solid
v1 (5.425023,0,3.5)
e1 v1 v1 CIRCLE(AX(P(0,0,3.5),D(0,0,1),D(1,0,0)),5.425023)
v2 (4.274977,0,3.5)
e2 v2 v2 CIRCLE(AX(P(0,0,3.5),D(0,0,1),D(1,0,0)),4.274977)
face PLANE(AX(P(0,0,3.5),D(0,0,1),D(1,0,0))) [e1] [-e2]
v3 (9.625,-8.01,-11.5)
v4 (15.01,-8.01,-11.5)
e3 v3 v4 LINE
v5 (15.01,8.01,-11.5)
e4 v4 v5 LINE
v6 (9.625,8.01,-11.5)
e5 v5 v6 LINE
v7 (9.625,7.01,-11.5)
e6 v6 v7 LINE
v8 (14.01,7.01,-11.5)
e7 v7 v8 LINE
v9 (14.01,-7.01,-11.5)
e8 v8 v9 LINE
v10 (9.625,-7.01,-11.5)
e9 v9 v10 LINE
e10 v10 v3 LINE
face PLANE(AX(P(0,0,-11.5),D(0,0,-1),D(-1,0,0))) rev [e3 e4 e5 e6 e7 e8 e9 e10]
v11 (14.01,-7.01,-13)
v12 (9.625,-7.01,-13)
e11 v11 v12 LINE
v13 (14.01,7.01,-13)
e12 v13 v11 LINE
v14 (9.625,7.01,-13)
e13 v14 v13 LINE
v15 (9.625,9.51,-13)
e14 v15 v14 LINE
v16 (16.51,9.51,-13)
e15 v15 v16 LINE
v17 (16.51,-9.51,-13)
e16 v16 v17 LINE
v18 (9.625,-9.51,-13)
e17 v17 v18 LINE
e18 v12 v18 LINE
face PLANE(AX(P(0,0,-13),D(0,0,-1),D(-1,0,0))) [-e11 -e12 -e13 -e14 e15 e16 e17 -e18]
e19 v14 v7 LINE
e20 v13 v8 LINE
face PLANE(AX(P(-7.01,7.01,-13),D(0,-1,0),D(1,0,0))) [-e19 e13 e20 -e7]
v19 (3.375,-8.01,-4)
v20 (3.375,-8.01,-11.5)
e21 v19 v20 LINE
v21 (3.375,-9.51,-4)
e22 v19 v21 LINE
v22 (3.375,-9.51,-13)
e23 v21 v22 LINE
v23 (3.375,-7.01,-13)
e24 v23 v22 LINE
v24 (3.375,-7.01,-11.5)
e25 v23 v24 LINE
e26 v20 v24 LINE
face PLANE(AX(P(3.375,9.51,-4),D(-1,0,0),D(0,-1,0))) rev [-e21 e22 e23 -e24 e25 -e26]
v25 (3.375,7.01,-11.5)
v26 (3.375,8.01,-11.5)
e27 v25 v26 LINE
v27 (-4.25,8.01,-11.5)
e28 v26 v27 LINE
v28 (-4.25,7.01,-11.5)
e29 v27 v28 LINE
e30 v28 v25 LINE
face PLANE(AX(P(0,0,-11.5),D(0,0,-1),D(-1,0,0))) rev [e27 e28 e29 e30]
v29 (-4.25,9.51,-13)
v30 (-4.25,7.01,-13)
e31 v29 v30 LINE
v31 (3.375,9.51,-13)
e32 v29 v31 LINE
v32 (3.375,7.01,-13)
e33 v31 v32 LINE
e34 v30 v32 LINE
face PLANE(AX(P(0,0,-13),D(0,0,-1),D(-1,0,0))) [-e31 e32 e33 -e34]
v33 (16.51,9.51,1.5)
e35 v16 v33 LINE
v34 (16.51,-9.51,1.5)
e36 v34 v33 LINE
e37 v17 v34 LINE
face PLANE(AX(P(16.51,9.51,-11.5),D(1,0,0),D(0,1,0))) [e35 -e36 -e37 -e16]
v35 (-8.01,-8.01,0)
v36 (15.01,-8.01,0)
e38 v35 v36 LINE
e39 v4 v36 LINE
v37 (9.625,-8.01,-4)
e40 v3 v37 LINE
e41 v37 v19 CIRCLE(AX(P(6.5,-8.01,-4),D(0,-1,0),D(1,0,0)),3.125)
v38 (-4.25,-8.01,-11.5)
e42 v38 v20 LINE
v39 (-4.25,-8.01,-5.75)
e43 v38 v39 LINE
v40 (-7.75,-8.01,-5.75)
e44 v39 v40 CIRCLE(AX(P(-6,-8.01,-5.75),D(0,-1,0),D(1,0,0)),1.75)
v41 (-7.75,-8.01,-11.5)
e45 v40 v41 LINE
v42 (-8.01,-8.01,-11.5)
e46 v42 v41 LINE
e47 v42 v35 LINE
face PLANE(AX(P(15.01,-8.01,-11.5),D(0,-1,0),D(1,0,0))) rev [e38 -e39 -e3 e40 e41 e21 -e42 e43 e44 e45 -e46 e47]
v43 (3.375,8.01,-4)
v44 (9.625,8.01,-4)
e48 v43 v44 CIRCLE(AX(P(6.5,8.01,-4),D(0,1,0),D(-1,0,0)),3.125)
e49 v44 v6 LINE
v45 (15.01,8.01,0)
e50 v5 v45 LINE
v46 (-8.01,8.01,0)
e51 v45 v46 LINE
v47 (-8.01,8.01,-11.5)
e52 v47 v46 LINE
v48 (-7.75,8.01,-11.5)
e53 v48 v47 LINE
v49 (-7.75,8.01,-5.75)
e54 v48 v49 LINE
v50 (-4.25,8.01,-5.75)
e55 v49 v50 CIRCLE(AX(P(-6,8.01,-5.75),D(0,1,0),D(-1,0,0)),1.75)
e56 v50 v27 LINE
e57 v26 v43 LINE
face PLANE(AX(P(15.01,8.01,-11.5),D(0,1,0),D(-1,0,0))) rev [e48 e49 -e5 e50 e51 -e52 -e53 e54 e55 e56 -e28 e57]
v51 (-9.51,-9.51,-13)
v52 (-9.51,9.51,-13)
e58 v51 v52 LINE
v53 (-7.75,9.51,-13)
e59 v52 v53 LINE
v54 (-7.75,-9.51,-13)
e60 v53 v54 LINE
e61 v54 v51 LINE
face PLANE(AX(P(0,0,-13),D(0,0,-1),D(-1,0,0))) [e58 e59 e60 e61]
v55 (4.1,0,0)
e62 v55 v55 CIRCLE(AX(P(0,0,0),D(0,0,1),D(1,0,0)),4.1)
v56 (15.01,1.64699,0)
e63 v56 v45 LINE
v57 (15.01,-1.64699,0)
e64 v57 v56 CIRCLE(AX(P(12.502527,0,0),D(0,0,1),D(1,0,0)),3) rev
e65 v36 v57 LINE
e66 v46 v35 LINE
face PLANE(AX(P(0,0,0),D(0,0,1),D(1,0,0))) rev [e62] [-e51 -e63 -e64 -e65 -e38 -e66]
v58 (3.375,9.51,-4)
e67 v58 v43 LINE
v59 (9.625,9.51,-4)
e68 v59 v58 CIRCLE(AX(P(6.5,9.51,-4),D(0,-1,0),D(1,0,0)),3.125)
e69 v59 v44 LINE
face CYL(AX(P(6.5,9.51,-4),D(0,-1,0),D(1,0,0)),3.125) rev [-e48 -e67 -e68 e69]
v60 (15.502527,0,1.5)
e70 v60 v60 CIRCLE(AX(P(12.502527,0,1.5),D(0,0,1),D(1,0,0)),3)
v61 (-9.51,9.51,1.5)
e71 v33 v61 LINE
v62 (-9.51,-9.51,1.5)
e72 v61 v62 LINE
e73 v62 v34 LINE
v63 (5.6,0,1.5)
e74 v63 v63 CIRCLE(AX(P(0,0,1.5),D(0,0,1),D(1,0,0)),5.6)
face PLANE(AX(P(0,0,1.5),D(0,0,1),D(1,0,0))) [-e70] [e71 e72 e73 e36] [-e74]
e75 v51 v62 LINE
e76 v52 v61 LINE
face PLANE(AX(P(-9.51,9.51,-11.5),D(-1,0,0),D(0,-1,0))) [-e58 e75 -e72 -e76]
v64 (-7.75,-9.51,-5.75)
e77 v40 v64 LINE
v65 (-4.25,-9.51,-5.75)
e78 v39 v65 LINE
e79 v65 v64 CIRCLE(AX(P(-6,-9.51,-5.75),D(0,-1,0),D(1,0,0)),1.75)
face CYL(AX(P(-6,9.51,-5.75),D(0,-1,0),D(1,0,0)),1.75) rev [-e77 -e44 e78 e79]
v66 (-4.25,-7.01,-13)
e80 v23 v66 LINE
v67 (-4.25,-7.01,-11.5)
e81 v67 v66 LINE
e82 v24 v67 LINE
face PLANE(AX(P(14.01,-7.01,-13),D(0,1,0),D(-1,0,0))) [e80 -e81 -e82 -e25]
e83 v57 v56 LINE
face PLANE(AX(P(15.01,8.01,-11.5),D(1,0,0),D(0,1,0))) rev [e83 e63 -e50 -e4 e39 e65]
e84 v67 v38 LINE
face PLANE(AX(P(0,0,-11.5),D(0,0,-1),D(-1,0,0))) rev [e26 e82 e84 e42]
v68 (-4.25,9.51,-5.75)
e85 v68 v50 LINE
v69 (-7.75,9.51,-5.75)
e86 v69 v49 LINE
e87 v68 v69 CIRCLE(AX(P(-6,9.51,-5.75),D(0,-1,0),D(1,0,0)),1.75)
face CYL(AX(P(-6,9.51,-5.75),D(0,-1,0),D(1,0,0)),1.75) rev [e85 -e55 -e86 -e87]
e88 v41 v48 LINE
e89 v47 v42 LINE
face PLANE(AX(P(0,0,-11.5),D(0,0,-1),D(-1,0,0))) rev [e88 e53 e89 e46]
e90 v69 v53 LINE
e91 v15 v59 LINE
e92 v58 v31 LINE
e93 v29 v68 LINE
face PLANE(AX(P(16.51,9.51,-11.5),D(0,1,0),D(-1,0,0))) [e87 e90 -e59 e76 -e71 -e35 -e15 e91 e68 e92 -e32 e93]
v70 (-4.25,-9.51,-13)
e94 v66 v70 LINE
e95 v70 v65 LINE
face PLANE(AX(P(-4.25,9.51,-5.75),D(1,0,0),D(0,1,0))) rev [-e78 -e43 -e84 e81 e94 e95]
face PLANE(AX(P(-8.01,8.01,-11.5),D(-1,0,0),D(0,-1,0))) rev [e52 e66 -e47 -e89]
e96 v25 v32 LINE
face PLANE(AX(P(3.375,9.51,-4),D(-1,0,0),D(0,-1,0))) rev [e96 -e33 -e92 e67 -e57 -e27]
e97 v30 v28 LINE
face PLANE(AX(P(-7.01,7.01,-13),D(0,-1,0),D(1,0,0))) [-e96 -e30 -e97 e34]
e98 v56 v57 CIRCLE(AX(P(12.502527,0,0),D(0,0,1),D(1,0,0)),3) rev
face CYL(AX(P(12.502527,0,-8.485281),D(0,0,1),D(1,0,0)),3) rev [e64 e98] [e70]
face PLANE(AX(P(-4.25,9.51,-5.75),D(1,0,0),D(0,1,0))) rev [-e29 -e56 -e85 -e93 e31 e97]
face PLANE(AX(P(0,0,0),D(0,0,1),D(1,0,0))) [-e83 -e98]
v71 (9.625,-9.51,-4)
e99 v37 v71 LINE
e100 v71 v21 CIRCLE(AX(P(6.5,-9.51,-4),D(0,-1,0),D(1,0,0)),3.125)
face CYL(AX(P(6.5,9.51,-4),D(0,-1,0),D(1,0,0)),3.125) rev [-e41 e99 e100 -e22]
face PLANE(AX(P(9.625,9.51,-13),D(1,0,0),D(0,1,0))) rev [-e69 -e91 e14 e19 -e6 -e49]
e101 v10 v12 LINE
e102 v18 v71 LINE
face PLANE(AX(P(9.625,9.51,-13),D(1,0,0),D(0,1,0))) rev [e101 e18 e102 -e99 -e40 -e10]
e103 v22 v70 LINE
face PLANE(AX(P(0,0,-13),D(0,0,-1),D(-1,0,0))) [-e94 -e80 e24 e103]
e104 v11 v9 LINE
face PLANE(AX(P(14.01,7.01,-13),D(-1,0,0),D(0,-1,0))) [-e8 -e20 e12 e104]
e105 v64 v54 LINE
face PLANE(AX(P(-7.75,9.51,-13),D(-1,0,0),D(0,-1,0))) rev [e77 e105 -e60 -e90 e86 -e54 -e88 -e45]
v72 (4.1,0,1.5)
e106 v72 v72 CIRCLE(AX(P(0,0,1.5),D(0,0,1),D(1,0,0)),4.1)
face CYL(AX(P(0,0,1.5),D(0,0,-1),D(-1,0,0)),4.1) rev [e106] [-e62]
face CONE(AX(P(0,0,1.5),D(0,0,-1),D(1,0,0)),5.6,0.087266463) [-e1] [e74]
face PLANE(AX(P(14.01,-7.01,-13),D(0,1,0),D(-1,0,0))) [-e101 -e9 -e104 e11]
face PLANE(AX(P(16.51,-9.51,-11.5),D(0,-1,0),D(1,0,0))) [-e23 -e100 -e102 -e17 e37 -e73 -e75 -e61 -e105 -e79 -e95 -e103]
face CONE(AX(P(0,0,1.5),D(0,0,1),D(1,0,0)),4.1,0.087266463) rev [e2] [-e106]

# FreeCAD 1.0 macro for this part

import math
import FreeCAD as App
import Part
import Sketcher


def faces_at(feature, points):
    """Names of the faces that lie closest to the given points."""
    faces = feature.Shape.Faces
    near = lambda p: min(range(len(faces)), key=lambda i: faces[i].distToShape(Part.Vertex(*p))[0])
    return sorted({f"Face{near(p) + 1}" for p in points})

doc = App.newDocument("Part")
body = doc.addObject("PartDesign::Body", "Body")

# Sketch on XY plane
sketch1 = body.newObject("Sketcher::SketchObject", "Sketch")
sketch1.AttachmentSupport = (doc.getObject("XY_Plane"), [""])
sketch1.MapMode = "FlatFace"
sketch1.addGeometry([
    Part.LineSegment(App.Vector(-10, 10, 0), App.Vector(-10, -10, 0)),  # 0
    Part.LineSegment(App.Vector(-10, -10, 0), App.Vector(17, -10, 0)),  # 1
    Part.LineSegment(App.Vector(17, -10, 0), App.Vector(17, 10, 0)),  # 2
    Part.LineSegment(App.Vector(17, 10, 0), App.Vector(-10, 10, 0)),  # 3
    Part.LineSegment(App.Vector(15, -8, 0), App.Vector(-8, -8, 0)),  # 4
    Part.LineSegment(App.Vector(-8, -8, 0), App.Vector(-8, 8, 0)),  # 5
    Part.LineSegment(App.Vector(-8, 8, 0), App.Vector(15, 8, 0)),  # 6
    Part.LineSegment(App.Vector(15, 8, 0), App.Vector(15, -8, 0)),  # 7
], False)
sketch1.addConstraint([
    Sketcher.Constraint("Coincident", 0, 2, 1, 1),
    Sketcher.Constraint("Coincident", 1, 2, 2, 1),
    Sketcher.Constraint("Coincident", 2, 2, 3, 1),
    Sketcher.Constraint("Coincident", 3, 2, 0, 1),
    Sketcher.Constraint("Coincident", 4, 2, 5, 1),
    Sketcher.Constraint("Coincident", 5, 2, 6, 1),
    Sketcher.Constraint("Coincident", 6, 2, 7, 1),
    Sketcher.Constraint("Coincident", 7, 2, 4, 1),
    Sketcher.Constraint("Vertical", 0),
    Sketcher.Constraint("Horizontal", 1),
    Sketcher.Constraint("Vertical", 2),
    Sketcher.Constraint("Horizontal", 3),
    Sketcher.Constraint("Horizontal", 4),
    Sketcher.Constraint("Vertical", 5),
    Sketcher.Constraint("Horizontal", 6),
    Sketcher.Constraint("Vertical", 7),
    Sketcher.Constraint("DistanceX", 1, 1, 1, 2, 26.02),
    Sketcher.Constraint("DistanceX", 4, 2, 4, 1, 23.02),
    Sketcher.Constraint("DistanceY", 0, 2, 0, 1, 19.02),
    Sketcher.Constraint("DistanceY", 5, 1, 5, 2, 16.02),
    Sketcher.Constraint("DistanceX", 0, 2, 4, 2, 1.5),
    Sketcher.Constraint("DistanceY", 0, 2, 4, 2, 1.5),
    Sketcher.Constraint("DistanceX", 0, 2, -1, 1, 9.51),
    Sketcher.Constraint("DistanceY", 0, 2, -1, 1, 9.51),
])
pad1 = body.newObject("PartDesign::Pad", "Pad")
pad1.Profile = sketch1
pad1.Length = 11.5
pad1.Reversed = True

# Sketch on XY plane
sketch2 = body.newObject("Sketcher::SketchObject", "Sketch001")
sketch2.AttachmentSupport = (doc.getObject("XY_Plane"), [""])
sketch2.MapMode = "FlatFace"
sketch2.AttachmentOffset = App.Placement(App.Vector(0, 0, -11.5), App.Rotation())
sketch2.addGeometry([
    Part.LineSegment(App.Vector(17, 10, 0), App.Vector(17, -10, 0)),  # 0
    Part.LineSegment(App.Vector(17, -10, 0), App.Vector(-10, -10, 0)),  # 1
    Part.LineSegment(App.Vector(-10, -10, 0), App.Vector(-10, 10, 0)),  # 2
    Part.LineSegment(App.Vector(-10, 10, 0), App.Vector(17, 10, 0)),  # 3
    Part.LineSegment(App.Vector(-7, -7, 0), App.Vector(14, -7, 0)),  # 4
    Part.LineSegment(App.Vector(14, -7, 0), App.Vector(14, 7, 0)),  # 5
    Part.LineSegment(App.Vector(14, 7, 0), App.Vector(-7, 7, 0)),  # 6
    Part.LineSegment(App.Vector(-7, 7, 0), App.Vector(-7, -7, 0)),  # 7
], False)
sketch2.addConstraint([
    Sketcher.Constraint("Coincident", 0, 2, 1, 1),
    Sketcher.Constraint("Coincident", 1, 2, 2, 1),
    Sketcher.Constraint("Coincident", 2, 2, 3, 1),
    Sketcher.Constraint("Coincident", 3, 2, 0, 1),
    Sketcher.Constraint("Coincident", 4, 2, 5, 1),
    Sketcher.Constraint("Coincident", 5, 2, 6, 1),
    Sketcher.Constraint("Coincident", 6, 2, 7, 1),
    Sketcher.Constraint("Coincident", 7, 2, 4, 1),
    Sketcher.Constraint("Vertical", 0),
    Sketcher.Constraint("Horizontal", 1),
    Sketcher.Constraint("Vertical", 2),
    Sketcher.Constraint("Horizontal", 3),
    Sketcher.Constraint("Horizontal", 4),
    Sketcher.Constraint("Vertical", 5),
    Sketcher.Constraint("Horizontal", 6),
    Sketcher.Constraint("Vertical", 7),
    Sketcher.Constraint("DistanceX", 1, 2, 1, 1, 26.02),
    Sketcher.Constraint("DistanceX", 4, 1, 4, 2, 21.02),
    Sketcher.Constraint("DistanceY", 0, 2, 0, 1, 19.02),
    Sketcher.Constraint("DistanceY", 5, 1, 5, 2, 14.02),
    Sketcher.Constraint("DistanceX", 4, 2, 0, 2, 2.5),
    Sketcher.Constraint("DistanceY", 0, 2, 4, 2, 2.5),
    Sketcher.Constraint("DistanceX", -1, 1, 0, 2, 16.51),
    Sketcher.Constraint("DistanceY", 0, 2, -1, 1, 9.51),
])
pad2 = body.newObject("PartDesign::Pad", "Pad001")
pad2.Profile = sketch2
pad2.Length = 1.5
pad2.Reversed = True

# Sketch on XY plane
sketch3 = body.newObject("Sketcher::SketchObject", "Sketch002")
sketch3.AttachmentSupport = (doc.getObject("XY_Plane"), [""])
sketch3.MapMode = "FlatFace"
sketch3.addGeometry([
    Part.LineSegment(App.Vector(-9.5, 9.5, 0), App.Vector(-9.5, -9.5, 0)),  # 0
    Part.LineSegment(App.Vector(-9.5, -9.5, 0), App.Vector(16.5, -9.5, 0)),  # 1
    Part.LineSegment(App.Vector(16.5, -9.5, 0), App.Vector(16.5, 9.5, 0)),  # 2
    Part.LineSegment(App.Vector(16.5, 9.5, 0), App.Vector(-9.5, 9.5, 0)),  # 3
    Part.Circle(App.Vector(0, 0, 0), App.Vector(0, 0, 1), 4.1),  # 4
], False)
sketch3.addConstraint([
    Sketcher.Constraint("Coincident", 0, 2, 1, 1),
    Sketcher.Constraint("Coincident", 1, 2, 2, 1),
    Sketcher.Constraint("Coincident", 2, 2, 3, 1),
    Sketcher.Constraint("Coincident", 3, 2, 0, 1),
    Sketcher.Constraint("Vertical", 0),
    Sketcher.Constraint("Horizontal", 1),
    Sketcher.Constraint("Vertical", 2),
    Sketcher.Constraint("Horizontal", 3),
    Sketcher.Constraint("Coincident", 4, 3, -1, 1),
    Sketcher.Constraint("Diameter", 4, 8.2),
    Sketcher.Constraint("DistanceX", 1, 1, 1, 2, 26.02),
    Sketcher.Constraint("DistanceY", 0, 2, 0, 1, 19.02),
    Sketcher.Constraint("DistanceX", 0, 2, -1, 1, 9.51),
    Sketcher.Constraint("DistanceY", 0, 2, -1, 1, 9.51),
])
pad3 = body.newObject("PartDesign::Pad", "Pad002")
pad3.Profile = sketch3
pad3.Length = 1.5
body2 = doc.addObject("PartDesign::Body", "Body001")

# Sketch on XY plane
sketch4 = body2.newObject("Sketcher::SketchObject", "Sketch003")
sketch4.AttachmentSupport = (doc.getObject("XY_Plane001"), [""])
sketch4.MapMode = "FlatFace"
sketch4.AttachmentOffset = App.Placement(App.Vector(0, 0, 1.5), App.Rotation())
sketch4.addGeometry([
    Part.Circle(App.Vector(0, 0, 0), App.Vector(0, 0, 1), 5.6),
    Part.Circle(App.Vector(0, 0, 0), App.Vector(0, 0, 1), 4.1),
], False)
sketch4.addConstraint([
    Sketcher.Constraint("Coincident", 0, 3, -1, 1),
    Sketcher.Constraint("Coincident", 1, 3, -1, 1),
    Sketcher.Constraint("Diameter", 0, 11.2),
    Sketcher.Constraint("Diameter", 1, 8.2),
])
pad4 = body2.newObject("PartDesign::Pad", "Pad003")
pad4.Profile = sketch4
pad4.Length = 2
doc.recompute()

datumplane = body2.newObject("PartDesign::Plane", "DatumPlane")
datumplane.AttachmentSupport = (doc.getObject("XY_Plane001"), [""])
datumplane.MapMode = "FlatFace"
datumplane.AttachmentOffset = App.Placement(App.Vector(0, 0, 1.5), App.Rotation())
draft = body2.newObject("PartDesign::Draft", "Draft")
draft.Base = (pad4, faces_at(pad4, [(-5.6, 0, 2.5), (-4.1, 0, 2.5)]))
draft.NeutralPlane = (datumplane, [""])
draft.Angle = 5
draft.Reversed = False
doc.recompute()

boolean = body.newObject("PartDesign::Boolean", "Boolean")
boolean.Type = "Fuse"
boolean.addObjects([body2])

# Sketch on XY plane
sketch5 = body.newObject("Sketcher::SketchObject", "Sketch004")
sketch5.AttachmentSupport = (doc.getObject("XY_Plane"), [""])
sketch5.MapMode = "FlatFace"
sketch5.AttachmentOffset = App.Placement(App.Vector(0, 0, 1.5), App.Rotation())
sketch5.addGeometry(Part.Circle(App.Vector(12.5, 0, 0), App.Vector(0, 0, 1), 3), False)
sketch5.addConstraint([
    Sketcher.Constraint("PointOnObject", 0, 3, -1),
    Sketcher.Constraint("Diameter", 0, 6.0),
    Sketcher.Constraint("DistanceX", -1, 1, 0, 3, 12.502527),
])
pocket1 = body.newObject("PartDesign::Pocket", "Pocket")
pocket1.Profile = sketch5
pocket1.Length = 1.5

# Sketch on XZ plane
sketch6 = body.newObject("Sketcher::SketchObject", "Sketch005")
sketch6.AttachmentSupport = (doc.getObject("XZ_Plane"), [""])
sketch6.MapMode = "FlatFace"
sketch6.AttachmentOffset = App.Placement(App.Vector(0, 0, 9.51), App.Rotation())
sketch6.addGeometry([
    Part.LineSegment(App.Vector(3.4, -4, 0), App.Vector(3.4, -13, 0)),  # 0
    Part.LineSegment(App.Vector(3.4, -13, 0), App.Vector(9.6, -13, 0)),  # 1
    Part.LineSegment(App.Vector(9.6, -13, 0), App.Vector(9.6, -4, 0)),  # 2
    Part.ArcOfCircle(Part.Circle(App.Vector(6.5, -4, 0), App.Vector(0, 0, 1), 3.1), math.radians(0), math.radians(180)),  # 3
    Part.LineSegment(App.Vector(-4.2, -13, 0), App.Vector(-4.2, -5.8, 0)),  # 4
    Part.ArcOfCircle(Part.Circle(App.Vector(-6, -5.8, 0), App.Vector(0, 0, 1), 1.8), math.radians(0), math.radians(180)),  # 5
    Part.LineSegment(App.Vector(-7.8, -5.8, 0), App.Vector(-7.8, -13, 0)),  # 6
    Part.LineSegment(App.Vector(-7.8, -13, 0), App.Vector(-4.2, -13, 0)),  # 7
], False)
sketch6.addConstraint([
    Sketcher.Constraint("Coincident", 0, 2, 1, 1),
    Sketcher.Constraint("Coincident", 1, 2, 2, 1),
    Sketcher.Constraint("Tangent", 2, 2, 3, 1),
    Sketcher.Constraint("Tangent", 3, 2, 0, 1),
    Sketcher.Constraint("Tangent", 4, 2, 5, 1),
    Sketcher.Constraint("Tangent", 5, 2, 6, 1),
    Sketcher.Constraint("Coincident", 6, 2, 7, 1),
    Sketcher.Constraint("Coincident", 7, 2, 4, 1),
    Sketcher.Constraint("Vertical", 0),
    Sketcher.Constraint("Horizontal", 1),
    Sketcher.Constraint("Vertical", 2),
    Sketcher.Constraint("Vertical", 4),
    Sketcher.Constraint("Vertical", 6),
    Sketcher.Constraint("Horizontal", 7),
    Sketcher.Constraint("Horizontal", 1, 2, 6, 2),
    Sketcher.Constraint("DistanceY", 0, 2, 0, 1, 9.0),
    Sketcher.Constraint("Radius", 5, 1.75),
    Sketcher.Constraint("DistanceY", 3, 3, -1, 1, 4.0),
    Sketcher.Constraint("DistanceX", 5, 3, -1, 1, 6.0),
    Sketcher.Constraint("Radius", 3, 3.125),
    Sketcher.Constraint("DistanceY", 4, 1, 4, 2, 7.25),
    Sketcher.Constraint("DistanceX", -1, 1, 3, 3, 6.5),
])
pocket2 = body.newObject("PartDesign::Pocket", "Pocket001")
pocket2.Profile = sketch6
pocket2.Type = "ThroughAll"

doc.recompute()
